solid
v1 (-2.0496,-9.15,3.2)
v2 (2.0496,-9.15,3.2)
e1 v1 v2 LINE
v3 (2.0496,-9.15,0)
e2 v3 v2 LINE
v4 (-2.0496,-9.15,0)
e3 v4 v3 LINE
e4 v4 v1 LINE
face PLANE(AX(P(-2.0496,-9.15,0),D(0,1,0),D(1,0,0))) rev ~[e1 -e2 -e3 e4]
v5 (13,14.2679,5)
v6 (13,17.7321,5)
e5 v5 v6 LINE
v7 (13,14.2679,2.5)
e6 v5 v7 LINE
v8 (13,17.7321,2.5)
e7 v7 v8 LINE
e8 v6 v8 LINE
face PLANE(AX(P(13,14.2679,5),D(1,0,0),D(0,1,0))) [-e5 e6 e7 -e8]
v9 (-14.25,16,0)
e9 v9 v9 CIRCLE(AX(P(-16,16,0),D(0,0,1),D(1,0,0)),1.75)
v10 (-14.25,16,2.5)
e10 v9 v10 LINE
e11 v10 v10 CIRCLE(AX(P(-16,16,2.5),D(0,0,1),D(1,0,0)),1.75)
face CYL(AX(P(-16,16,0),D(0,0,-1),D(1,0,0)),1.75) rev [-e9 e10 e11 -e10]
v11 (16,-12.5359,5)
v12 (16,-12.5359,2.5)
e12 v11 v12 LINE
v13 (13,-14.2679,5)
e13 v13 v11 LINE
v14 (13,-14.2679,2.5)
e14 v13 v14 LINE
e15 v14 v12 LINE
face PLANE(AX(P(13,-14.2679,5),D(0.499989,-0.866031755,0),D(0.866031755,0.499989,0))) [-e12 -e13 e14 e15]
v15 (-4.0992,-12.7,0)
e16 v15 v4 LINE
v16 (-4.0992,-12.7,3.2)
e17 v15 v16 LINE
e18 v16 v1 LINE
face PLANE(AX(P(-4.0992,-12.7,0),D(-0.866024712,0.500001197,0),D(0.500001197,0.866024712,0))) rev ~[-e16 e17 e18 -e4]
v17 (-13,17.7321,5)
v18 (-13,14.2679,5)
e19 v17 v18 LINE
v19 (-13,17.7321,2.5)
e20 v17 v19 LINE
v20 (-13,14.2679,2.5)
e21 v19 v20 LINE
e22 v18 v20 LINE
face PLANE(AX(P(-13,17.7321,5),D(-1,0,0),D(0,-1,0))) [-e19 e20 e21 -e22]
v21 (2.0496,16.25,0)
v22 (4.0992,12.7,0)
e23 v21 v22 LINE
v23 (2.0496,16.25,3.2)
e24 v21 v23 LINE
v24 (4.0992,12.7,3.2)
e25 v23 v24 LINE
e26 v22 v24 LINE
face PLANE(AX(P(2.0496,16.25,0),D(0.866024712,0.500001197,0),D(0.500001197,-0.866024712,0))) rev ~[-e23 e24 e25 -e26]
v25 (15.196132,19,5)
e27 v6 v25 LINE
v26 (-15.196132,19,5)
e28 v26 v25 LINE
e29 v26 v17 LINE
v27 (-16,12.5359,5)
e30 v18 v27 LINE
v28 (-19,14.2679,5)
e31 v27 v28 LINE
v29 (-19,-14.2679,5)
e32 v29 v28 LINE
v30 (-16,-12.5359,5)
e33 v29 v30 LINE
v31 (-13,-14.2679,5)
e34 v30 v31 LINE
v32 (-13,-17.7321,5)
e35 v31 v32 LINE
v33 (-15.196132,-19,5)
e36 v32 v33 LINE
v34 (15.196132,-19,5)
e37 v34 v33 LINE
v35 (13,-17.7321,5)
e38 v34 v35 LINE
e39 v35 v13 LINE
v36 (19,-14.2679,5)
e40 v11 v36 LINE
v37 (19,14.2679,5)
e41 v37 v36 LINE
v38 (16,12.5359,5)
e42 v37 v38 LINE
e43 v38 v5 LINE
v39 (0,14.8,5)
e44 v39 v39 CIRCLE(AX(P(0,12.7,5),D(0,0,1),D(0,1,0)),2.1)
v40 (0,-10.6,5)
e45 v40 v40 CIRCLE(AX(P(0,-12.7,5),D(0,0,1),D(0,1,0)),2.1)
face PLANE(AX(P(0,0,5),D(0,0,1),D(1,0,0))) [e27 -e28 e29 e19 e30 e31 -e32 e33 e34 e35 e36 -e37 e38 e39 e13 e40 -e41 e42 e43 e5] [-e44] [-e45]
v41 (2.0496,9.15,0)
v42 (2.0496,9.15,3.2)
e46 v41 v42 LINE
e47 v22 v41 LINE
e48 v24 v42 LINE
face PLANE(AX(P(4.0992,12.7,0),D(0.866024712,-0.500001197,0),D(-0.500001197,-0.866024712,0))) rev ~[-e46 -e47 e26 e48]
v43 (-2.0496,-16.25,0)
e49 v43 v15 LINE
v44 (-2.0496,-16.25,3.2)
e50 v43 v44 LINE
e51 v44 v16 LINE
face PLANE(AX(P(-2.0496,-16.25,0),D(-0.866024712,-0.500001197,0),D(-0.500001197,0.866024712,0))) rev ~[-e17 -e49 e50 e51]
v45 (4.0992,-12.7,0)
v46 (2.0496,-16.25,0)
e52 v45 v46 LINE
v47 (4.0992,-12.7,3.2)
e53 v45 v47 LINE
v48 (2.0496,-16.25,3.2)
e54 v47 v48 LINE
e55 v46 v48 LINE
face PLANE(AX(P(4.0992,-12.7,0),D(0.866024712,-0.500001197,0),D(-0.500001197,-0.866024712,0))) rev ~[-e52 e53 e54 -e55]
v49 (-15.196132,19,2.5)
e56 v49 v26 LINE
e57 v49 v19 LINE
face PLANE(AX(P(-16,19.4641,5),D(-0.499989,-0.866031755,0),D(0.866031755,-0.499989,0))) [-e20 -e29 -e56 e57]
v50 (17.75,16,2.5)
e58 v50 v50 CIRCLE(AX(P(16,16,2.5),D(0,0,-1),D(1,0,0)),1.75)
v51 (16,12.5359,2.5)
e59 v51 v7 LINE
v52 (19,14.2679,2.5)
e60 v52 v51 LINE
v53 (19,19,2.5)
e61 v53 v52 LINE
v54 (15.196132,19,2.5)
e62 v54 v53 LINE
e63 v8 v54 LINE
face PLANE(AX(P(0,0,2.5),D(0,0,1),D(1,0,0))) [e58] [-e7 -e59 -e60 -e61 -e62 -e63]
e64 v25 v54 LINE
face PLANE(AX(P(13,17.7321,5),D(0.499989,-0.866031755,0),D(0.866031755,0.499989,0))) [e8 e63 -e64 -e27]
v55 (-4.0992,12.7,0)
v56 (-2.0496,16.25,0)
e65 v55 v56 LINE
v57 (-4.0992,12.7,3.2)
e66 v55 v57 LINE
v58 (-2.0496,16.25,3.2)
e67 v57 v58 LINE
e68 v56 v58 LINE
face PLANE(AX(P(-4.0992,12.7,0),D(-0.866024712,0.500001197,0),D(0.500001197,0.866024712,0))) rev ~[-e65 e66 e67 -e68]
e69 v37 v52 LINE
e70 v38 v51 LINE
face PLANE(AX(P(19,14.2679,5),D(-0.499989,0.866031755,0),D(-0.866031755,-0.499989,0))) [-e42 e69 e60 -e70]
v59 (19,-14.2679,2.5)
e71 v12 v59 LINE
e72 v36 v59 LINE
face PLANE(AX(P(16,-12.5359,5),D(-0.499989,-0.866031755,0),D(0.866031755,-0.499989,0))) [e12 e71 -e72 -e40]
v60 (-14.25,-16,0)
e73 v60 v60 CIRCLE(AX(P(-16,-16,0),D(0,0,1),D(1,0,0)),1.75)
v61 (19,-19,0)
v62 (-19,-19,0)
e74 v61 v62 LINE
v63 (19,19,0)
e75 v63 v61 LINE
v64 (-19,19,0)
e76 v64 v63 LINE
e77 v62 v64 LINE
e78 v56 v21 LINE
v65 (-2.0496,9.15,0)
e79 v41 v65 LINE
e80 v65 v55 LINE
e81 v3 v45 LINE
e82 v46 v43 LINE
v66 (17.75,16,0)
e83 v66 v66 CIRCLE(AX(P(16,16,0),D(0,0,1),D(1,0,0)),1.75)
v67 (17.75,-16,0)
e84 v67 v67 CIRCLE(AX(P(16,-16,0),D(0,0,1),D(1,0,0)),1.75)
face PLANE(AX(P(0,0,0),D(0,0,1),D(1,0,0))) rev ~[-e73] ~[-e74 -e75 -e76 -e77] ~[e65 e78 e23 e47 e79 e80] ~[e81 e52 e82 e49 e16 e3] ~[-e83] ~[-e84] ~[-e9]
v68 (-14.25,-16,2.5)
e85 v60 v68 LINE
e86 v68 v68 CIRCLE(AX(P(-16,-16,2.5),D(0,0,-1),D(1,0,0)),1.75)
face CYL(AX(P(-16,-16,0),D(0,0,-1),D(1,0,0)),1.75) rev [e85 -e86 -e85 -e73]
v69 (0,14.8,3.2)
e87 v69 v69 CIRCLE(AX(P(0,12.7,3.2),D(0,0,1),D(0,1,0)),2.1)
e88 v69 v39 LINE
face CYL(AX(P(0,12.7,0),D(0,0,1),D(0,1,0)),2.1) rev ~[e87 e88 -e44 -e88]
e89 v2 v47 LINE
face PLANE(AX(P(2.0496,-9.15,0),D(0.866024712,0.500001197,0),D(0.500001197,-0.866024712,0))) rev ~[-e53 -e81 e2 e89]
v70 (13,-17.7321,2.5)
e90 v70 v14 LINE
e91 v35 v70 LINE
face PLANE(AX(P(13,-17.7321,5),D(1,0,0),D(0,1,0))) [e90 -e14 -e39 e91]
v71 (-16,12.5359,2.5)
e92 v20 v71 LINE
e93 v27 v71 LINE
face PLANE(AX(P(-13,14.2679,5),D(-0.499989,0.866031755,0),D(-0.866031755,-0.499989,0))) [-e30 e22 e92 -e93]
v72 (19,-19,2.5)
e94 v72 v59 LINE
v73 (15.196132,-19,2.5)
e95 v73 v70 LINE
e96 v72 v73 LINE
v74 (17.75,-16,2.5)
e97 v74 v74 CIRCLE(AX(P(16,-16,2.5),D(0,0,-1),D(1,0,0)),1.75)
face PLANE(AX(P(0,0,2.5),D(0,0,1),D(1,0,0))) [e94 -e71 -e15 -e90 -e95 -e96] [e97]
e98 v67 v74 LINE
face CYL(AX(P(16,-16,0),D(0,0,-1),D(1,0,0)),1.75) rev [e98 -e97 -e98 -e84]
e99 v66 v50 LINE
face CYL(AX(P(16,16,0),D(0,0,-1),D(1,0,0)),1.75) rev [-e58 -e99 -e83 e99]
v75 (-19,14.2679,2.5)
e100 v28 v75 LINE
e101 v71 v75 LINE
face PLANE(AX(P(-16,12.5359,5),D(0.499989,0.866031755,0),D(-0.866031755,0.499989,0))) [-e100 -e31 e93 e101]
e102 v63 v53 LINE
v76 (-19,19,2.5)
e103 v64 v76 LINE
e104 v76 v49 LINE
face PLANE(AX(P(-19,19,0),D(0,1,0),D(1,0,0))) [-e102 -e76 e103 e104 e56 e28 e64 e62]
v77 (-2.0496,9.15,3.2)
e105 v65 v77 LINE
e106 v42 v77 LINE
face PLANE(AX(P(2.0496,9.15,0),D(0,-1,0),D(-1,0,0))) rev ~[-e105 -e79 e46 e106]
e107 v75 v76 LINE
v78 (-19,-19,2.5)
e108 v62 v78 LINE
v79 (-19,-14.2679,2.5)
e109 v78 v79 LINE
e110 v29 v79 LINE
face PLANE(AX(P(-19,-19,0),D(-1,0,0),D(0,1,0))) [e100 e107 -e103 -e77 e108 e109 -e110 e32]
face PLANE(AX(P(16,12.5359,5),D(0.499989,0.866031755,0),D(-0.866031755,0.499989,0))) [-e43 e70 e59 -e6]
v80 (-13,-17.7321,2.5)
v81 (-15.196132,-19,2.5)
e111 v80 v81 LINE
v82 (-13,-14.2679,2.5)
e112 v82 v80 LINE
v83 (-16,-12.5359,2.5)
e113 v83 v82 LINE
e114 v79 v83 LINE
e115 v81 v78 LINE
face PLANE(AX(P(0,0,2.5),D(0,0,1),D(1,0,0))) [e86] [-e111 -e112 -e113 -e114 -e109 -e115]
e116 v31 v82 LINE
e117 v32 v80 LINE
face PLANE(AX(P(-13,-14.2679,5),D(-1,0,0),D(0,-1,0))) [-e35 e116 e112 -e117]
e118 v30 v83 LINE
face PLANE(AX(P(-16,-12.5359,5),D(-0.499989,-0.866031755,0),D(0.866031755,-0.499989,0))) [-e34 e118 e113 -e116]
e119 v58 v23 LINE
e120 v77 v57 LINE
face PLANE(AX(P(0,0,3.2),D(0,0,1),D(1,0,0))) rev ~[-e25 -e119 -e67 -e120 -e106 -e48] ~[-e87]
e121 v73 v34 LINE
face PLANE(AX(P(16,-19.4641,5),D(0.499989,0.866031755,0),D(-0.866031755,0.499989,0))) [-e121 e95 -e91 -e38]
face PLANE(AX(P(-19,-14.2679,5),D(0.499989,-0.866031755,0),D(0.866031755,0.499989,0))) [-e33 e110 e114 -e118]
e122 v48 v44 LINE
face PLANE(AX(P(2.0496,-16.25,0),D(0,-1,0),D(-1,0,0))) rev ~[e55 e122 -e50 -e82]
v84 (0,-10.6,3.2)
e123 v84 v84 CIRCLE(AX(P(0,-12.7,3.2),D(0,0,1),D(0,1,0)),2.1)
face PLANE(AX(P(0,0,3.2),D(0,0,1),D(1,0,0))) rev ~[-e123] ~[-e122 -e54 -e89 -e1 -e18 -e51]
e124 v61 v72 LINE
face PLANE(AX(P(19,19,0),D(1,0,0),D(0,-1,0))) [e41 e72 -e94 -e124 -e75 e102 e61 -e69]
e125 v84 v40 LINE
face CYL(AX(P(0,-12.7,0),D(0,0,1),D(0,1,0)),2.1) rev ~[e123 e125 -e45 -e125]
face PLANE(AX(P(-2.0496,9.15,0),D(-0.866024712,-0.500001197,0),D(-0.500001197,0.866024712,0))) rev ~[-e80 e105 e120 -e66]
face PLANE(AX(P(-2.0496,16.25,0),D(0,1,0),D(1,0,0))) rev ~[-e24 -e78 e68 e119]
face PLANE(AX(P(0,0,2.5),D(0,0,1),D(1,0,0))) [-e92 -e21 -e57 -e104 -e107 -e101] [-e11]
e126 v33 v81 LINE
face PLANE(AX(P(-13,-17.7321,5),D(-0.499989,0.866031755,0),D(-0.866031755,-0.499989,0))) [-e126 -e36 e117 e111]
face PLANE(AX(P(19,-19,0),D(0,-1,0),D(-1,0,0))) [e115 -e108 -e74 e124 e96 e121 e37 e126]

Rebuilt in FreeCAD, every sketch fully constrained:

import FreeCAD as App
import Part
import Sketcher
from FreeCAD import Vector
Q = App.Units.Quantity

doc = App.newDocument("Part")
body = doc.addObject("PartDesign::Body", "Body")

sketch1 = doc.addObject("Sketcher::SketchObject", "Sketch")
body.addObject(sketch1)
sketch1.AttachmentSupport = (doc.XY_Plane, [""])
sketch1.MapMode = "FlatFace"
sketch1.addGeometry([
    Part.LineSegment(Vector(-19, -19, 0), Vector(19, -19, 0)),
    Part.LineSegment(Vector(19, -19, 0), Vector(19, 19, 0)),
    Part.LineSegment(Vector(19, 19, 0), Vector(-19, 19, 0)),
    Part.LineSegment(Vector(-19, 19, 0), Vector(-19, -19, 0)),
    Part.Circle(Vector(-16, -16, 0), Vector(0, 0, 1), 1.8),
    Part.Circle(Vector(16, -16, 0), Vector(0, 0, 1), 1.8),
    Part.Circle(Vector(-16, 16, 0), Vector(0, 0, 1), 1.8),
    Part.Circle(Vector(16, 16, 0), Vector(0, 0, 1), 1.8),
], False)
sketch1.addConstraint([
    Sketcher.Constraint("Coincident", 0, 2, 1, 1),
    Sketcher.Constraint("Coincident", 1, 2, 2, 1),
    Sketcher.Constraint("Coincident", 2, 2, 3, 1),
    Sketcher.Constraint("Coincident", 3, 2, 0, 1),
    Sketcher.Constraint("Horizontal", 0),
    Sketcher.Constraint("Vertical", 1),
    Sketcher.Constraint("Horizontal", 2),
    Sketcher.Constraint("Vertical", 3),
    Sketcher.Constraint("Equal", 4, 5),
    Sketcher.Constraint("Equal", 5, 6),
    Sketcher.Constraint("Equal", 6, 7),
    Sketcher.Constraint("Symmetric", 5, 3, 6, 3, -1, 1),
    Sketcher.Constraint("Symmetric", 4, 3, 7, 3, -1, 1),
    Sketcher.Constraint("Symmetric", 0, 2, 2, 2, -1, 1),
    Sketcher.Constraint("Symmetric", 4, 3, 5, 3, -2),
    Sketcher.Constraint("Equal", 2, 1),
    Sketcher.Constraint("Diameter", 4, 3.5),
    Sketcher.Constraint("DistanceX", 0, 1, 0, 2, 38.0),
    Sketcher.Constraint("DistanceX", 4, 3, -1, 1, 16.0),
    Sketcher.Constraint("DistanceY", 4, 3, -1, 1, 16.0),
])
pad1 = doc.addObject("PartDesign::Pad", "Pad")
body.addObject(pad1)
pad1.Profile = sketch1
pad1.Length = 5

sketch2 = doc.addObject("Sketcher::SketchObject", "Sketch001")
body.addObject(sketch2)
sketch2.AttachmentSupport = (doc.XY_Plane, [""])
sketch2.MapMode = "FlatFace"
sketch2.AttachmentOffset = App.Placement(Vector(0, 0, 5), App.Rotation())
sketch2.addGeometry([
    Part.LineSegment(Vector(-13, 17.7, 0), Vector(-16, 19.5, 0)),
    Part.LineSegment(Vector(-16, 19.5, 0), Vector(-19, 17.7, 0)),
    Part.LineSegment(Vector(-19, 17.7, 0), Vector(-19, 14.3, 0)),
    Part.LineSegment(Vector(-19, 14.3, 0), Vector(-16, 12.5, 0)),
    Part.LineSegment(Vector(-16, 12.5, 0), Vector(-13, 14.3, 0)),
    Part.LineSegment(Vector(-13, 14.3, 0), Vector(-13, 17.7, 0)),
    Part.Circle(Vector(-16, 16, 0), Vector(0, 0, 1), 1.8),
    Part.LineSegment(Vector(19, 17.7, 0), Vector(16, 19.5, 0)),
    Part.LineSegment(Vector(16, 19.5, 0), Vector(13, 17.7, 0)),
    Part.LineSegment(Vector(13, 17.7, 0), Vector(13, 14.3, 0)),
    Part.LineSegment(Vector(13, 14.3, 0), Vector(16, 12.5, 0)),
    Part.LineSegment(Vector(16, 12.5, 0), Vector(19, 14.3, 0)),
    Part.LineSegment(Vector(19, 14.3, 0), Vector(19, 17.7, 0)),
    Part.LineSegment(Vector(-13, -14.3, 0), Vector(-16, -12.5, 0)),
    Part.LineSegment(Vector(-16, -12.5, 0), Vector(-19, -14.3, 0)),
    Part.LineSegment(Vector(-19, -14.3, 0), Vector(-19, -17.7, 0)),
    Part.LineSegment(Vector(-19, -17.7, 0), Vector(-16, -19.5, 0)),
    Part.LineSegment(Vector(-16, -19.5, 0), Vector(-13, -17.7, 0)),
    Part.LineSegment(Vector(-13, -17.7, 0), Vector(-13, -14.3, 0)),
    Part.LineSegment(Vector(19, -14.3, 0), Vector(16, -12.5, 0)),
    Part.LineSegment(Vector(16, -12.5, 0), Vector(13, -14.3, 0)),
    Part.LineSegment(Vector(13, -14.3, 0), Vector(13, -17.7, 0)),
    Part.LineSegment(Vector(13, -17.7, 0), Vector(16, -19.5, 0)),
    Part.LineSegment(Vector(16, -19.5, 0), Vector(19, -17.7, 0)),
    Part.LineSegment(Vector(19, -17.7, 0), Vector(19, -14.3, 0)),
], False)
sketch2.addConstraint([
    Sketcher.Constraint("Coincident", 0, 2, 1, 1),
    Sketcher.Constraint("Coincident", 1, 2, 2, 1),
    Sketcher.Constraint("Coincident", 2, 2, 3, 1),
    Sketcher.Constraint("Coincident", 3, 2, 4, 1),
    Sketcher.Constraint("Coincident", 4, 2, 5, 1),
    Sketcher.Constraint("Coincident", 5, 2, 0, 1),
    Sketcher.Constraint("Coincident", 7, 2, 8, 1),
    Sketcher.Constraint("Coincident", 8, 2, 9, 1),
    Sketcher.Constraint("Coincident", 9, 2, 10, 1),
    Sketcher.Constraint("Coincident", 10, 2, 11, 1),
    Sketcher.Constraint("Coincident", 11, 2, 12, 1),
    Sketcher.Constraint("Coincident", 12, 2, 7, 1),
    Sketcher.Constraint("Coincident", 13, 2, 14, 1),
    Sketcher.Constraint("Coincident", 14, 2, 15, 1),
    Sketcher.Constraint("Coincident", 15, 2, 16, 1),
    Sketcher.Constraint("Coincident", 16, 2, 17, 1),
    Sketcher.Constraint("Coincident", 17, 2, 18, 1),
    Sketcher.Constraint("Coincident", 18, 2, 13, 1),
    Sketcher.Constraint("Coincident", 19, 2, 20, 1),
    Sketcher.Constraint("Coincident", 20, 2, 21, 1),
    Sketcher.Constraint("Coincident", 21, 2, 22, 1),
    Sketcher.Constraint("Coincident", 22, 2, 23, 1),
    Sketcher.Constraint("Coincident", 23, 2, 24, 1),
    Sketcher.Constraint("Coincident", 24, 2, 19, 1),
    Sketcher.Constraint("Vertical", 2),
    Sketcher.Constraint("Vertical", 5),
    Sketcher.Constraint("Vertical", 9),
    Sketcher.Constraint("Vertical", 12),
    Sketcher.Constraint("Vertical", 15),
    Sketcher.Constraint("Vertical", 18),
    Sketcher.Constraint("Vertical", 21),
    Sketcher.Constraint("Vertical", 24),
    Sketcher.Constraint("Symmetric", 10, 2, 13, 2, -1, 1),
    Sketcher.Constraint("Symmetric", 11, 2, 14, 2, -1, 1),
    Sketcher.Constraint("Symmetric", 7, 2, 16, 2, -1, 1),
    Sketcher.Constraint("Symmetric", 8, 2, 17, 2, -1, 1),
    Sketcher.Constraint("Symmetric", 3, 2, 19, 2, -1, 1),
    Sketcher.Constraint("Symmetric", 4, 2, 20, 2, -1, 1),
    Sketcher.Constraint("Symmetric", 0, 2, 22, 2, -1, 1),
    Sketcher.Constraint("Symmetric", 1, 2, 23, 2, -1, 1),
    Sketcher.Constraint("Symmetric", 0, 2, 7, 2, -2),
    Sketcher.Constraint("Symmetric", 5, 2, 8, 2, -2),
    Sketcher.Constraint("Symmetric", 3, 2, 10, 2, -2),
    Sketcher.Constraint("Symmetric", 2, 2, 11, 2, -2),
    Sketcher.Constraint("Parallel", 0, 3),
    Sketcher.Constraint("Parallel", 1, 4),
    Sketcher.Constraint("Parallel", 3, 7),
    Sketcher.Constraint("Parallel", 4, 8),
    Sketcher.Constraint("Parallel", 7, 10),
    Sketcher.Constraint("Parallel", 10, 13),
    Sketcher.Constraint("Parallel", 13, 16),
    Sketcher.Constraint("Parallel", 16, 19),
    Sketcher.Constraint("Parallel", 19, 22),
    Sketcher.Constraint("Horizontal", 2, 2, 4, 2),
    Sketcher.Constraint("Horizontal", 1, 2, 5, 2),
    Sketcher.Constraint("Vertical", 6, 3, 0, 2),
    Sketcher.Constraint("DistanceX", 2, 2, 4, 2, 6.0),
    Sketcher.Constraint("DistanceX", 0, 2, 7, 2, 32.0),
    Sketcher.Constraint("DistanceY", 15, 2, 2, 2, 32.0),
    Sketcher.Constraint("Diameter", 6, 3.5),
    Sketcher.Constraint("Angle", 0, Q("150.0007 deg")),
    Sketcher.Constraint("DistanceY", -1, 1, 6, 3, 16.0),
    Sketcher.Constraint("DistanceY", 2, 2, 2, 1, 3.4642),
])
pocket1 = doc.addObject("PartDesign::Pocket", "Pocket")
body.addObject(pocket1)
pocket1.Profile = sketch2
pocket1.Length = 2.5

sketch3 = doc.addObject("Sketcher::SketchObject", "Sketch002")
body.addObject(sketch3)
sketch3.AttachmentSupport = (doc.XY_Plane, [""])
sketch3.MapMode = "FlatFace"
sketch3.addGeometry([
    Part.LineSegment(Vector(2, -16.2, 0), Vector(4.1, -12.7, 0)),
    Part.LineSegment(Vector(4.1, -12.7, 0), Vector(2, -9.2, 0)),
    Part.LineSegment(Vector(2, -9.2, 0), Vector(-2, -9.2, 0)),
    Part.LineSegment(Vector(-2, -9.2, 0), Vector(-4.1, -12.7, 0)),
    Part.LineSegment(Vector(-4.1, -12.7, 0), Vector(-2, -16.2, 0)),
    Part.LineSegment(Vector(-2, -16.2, 0), Vector(2, -16.2, 0)),
    Part.LineSegment(Vector(2, 9.2, 0), Vector(4.1, 12.7, 0)),
    Part.LineSegment(Vector(4.1, 12.7, 0), Vector(2, 16.2, 0)),
    Part.LineSegment(Vector(2, 16.2, 0), Vector(-2, 16.2, 0)),
    Part.LineSegment(Vector(-2, 16.2, 0), Vector(-4.1, 12.7, 0)),
    Part.LineSegment(Vector(-4.1, 12.7, 0), Vector(-2, 9.2, 0)),
    Part.LineSegment(Vector(-2, 9.2, 0), Vector(2, 9.2, 0)),
], False)
sketch3.addConstraint([
    Sketcher.Constraint("Coincident", 0, 2, 1, 1),
    Sketcher.Constraint("Coincident", 1, 2, 2, 1),
    Sketcher.Constraint("Coincident", 2, 2, 3, 1),
    Sketcher.Constraint("Coincident", 3, 2, 4, 1),
    Sketcher.Constraint("Coincident", 4, 2, 5, 1),
    Sketcher.Constraint("Coincident", 5, 2, 0, 1),
    Sketcher.Constraint("Coincident", 6, 2, 7, 1),
    Sketcher.Constraint("Coincident", 7, 2, 8, 1),
    Sketcher.Constraint("Coincident", 8, 2, 9, 1),
    Sketcher.Constraint("Coincident", 9, 2, 10, 1),
    Sketcher.Constraint("Coincident", 10, 2, 11, 1),
    Sketcher.Constraint("Coincident", 11, 2, 6, 1),
    Sketcher.Constraint("Horizontal", 2),
    Sketcher.Constraint("Horizontal", 5),
    Sketcher.Constraint("Horizontal", 8),
    Sketcher.Constraint("Horizontal", 11),
    Sketcher.Constraint("Symmetric", 3, 2, 6, 2, -1, 1),
    Sketcher.Constraint("Symmetric", 4, 2, 7, 2, -1, 1),
    Sketcher.Constraint("Symmetric", 0, 2, 9, 2, -1, 1),
    Sketcher.Constraint("Symmetric", 1, 2, 10, 2, -1, 1),
    Sketcher.Constraint("Symmetric", 0, 2, 3, 2, -2),
    Sketcher.Constraint("Parallel", 0, 3),
    Sketcher.Constraint("Parallel", 1, 4),
    Sketcher.Constraint("Parallel", 3, 6),
    Sketcher.Constraint("Parallel", 6, 9),
    Sketcher.Constraint("Vertical", 2, 2, 4, 2),
    Sketcher.Constraint("Vertical", 1, 2, 5, 2),
    Sketcher.Constraint("DistanceY", 4, 2, 2, 2, 7.1),
    Sketcher.Constraint("Angle", 0, Q("60 deg")),
    Sketcher.Constraint("DistanceY", 0, 2, -1, 1, 12.7),
    Sketcher.Constraint("DistanceX", 2, 2, 2, 1, 4.0992),
])
pocket2 = doc.addObject("PartDesign::Pocket", "Pocket001")
body.addObject(pocket2)
pocket2.Profile = sketch3
pocket2.Length = 3.2
pocket2.Reversed = True

sketch4 = doc.addObject("Sketcher::SketchObject", "Sketch003")
body.addObject(sketch4)
sketch4.AttachmentSupport = (doc.XY_Plane, [""])
sketch4.MapMode = "FlatFace"
sketch4.addGeometry([
    Part.Circle(Vector(0, 12.7, 0), Vector(0, 0, 1), 2.1),
    Part.Circle(Vector(0, -12.7, 0), Vector(0, 0, 1), 2.1),
], False)
sketch4.addConstraint([
    Sketcher.Constraint("Equal", 0, 1),
    Sketcher.Constraint("Symmetric", 0, 3, 1, 3, -1, 1),
    Sketcher.Constraint("PointOnObject", 0, 3, -2),
    Sketcher.Constraint("Diameter", 0, 4.2),
    Sketcher.Constraint("DistanceY", -1, 1, 0, 3, 12.7),
])
doc.recompute()
hole = doc.addObject("PartDesign::Hole", "Hole")
body.addObject(hole)
hole.Profile = sketch4
hole.ThreadType = "None"
hole.Diameter = 4.2
hole.DepthType = "ThroughAll"
hole.Reversed = True

sketch5 = doc.addObject("Sketcher::SketchObject", "Sketch004")
body.addObject(sketch5)
sketch5.AttachmentSupport = (doc.XY_Plane, [""])
sketch5.MapMode = "FlatFace"
sketch5.AttachmentOffset = App.Placement(Vector(0, 0, 5), App.Rotation())
sketch5.addGeometry([
    Part.LineSegment(Vector(-19, -19, 0), Vector(-16.8, -19, 0)),
    Part.LineSegment(Vector(-16.8, -19, 0), Vector(-19, -17.7, 0)),
    Part.LineSegment(Vector(-19, -17.7, 0), Vector(-19, -19, 0)),
    Part.LineSegment(Vector(19, -17.7, 0), Vector(16.8, -19, 0)),
    Part.LineSegment(Vector(16.8, -19, 0), Vector(19, -19, 0)),
    Part.LineSegment(Vector(19, -19, 0), Vector(19, -17.7, 0)),
    Part.LineSegment(Vector(-19, 19, 0), Vector(-19, 17.7, 0)),
    Part.LineSegment(Vector(-19, 17.7, 0), Vector(-16.8, 19, 0)),
    Part.LineSegment(Vector(-16.8, 19, 0), Vector(-19, 19, 0)),
    Part.LineSegment(Vector(16.8, 19, 0), Vector(19, 17.7, 0)),
    Part.LineSegment(Vector(19, 17.7, 0), Vector(19, 19, 0)),
    Part.LineSegment(Vector(19, 19, 0), Vector(16.8, 19, 0)),
], False)
sketch5.addConstraint([
    Sketcher.Constraint("Coincident", 0, 2, 1, 1),
    Sketcher.Constraint("Coincident", 1, 2, 2, 1),
    Sketcher.Constraint("Coincident", 2, 2, 0, 1),
    Sketcher.Constraint("Coincident", 3, 2, 4, 1),
    Sketcher.Constraint("Coincident", 4, 2, 5, 1),
    Sketcher.Constraint("Coincident", 5, 2, 3, 1),
    Sketcher.Constraint("Coincident", 6, 2, 7, 1),
    Sketcher.Constraint("Coincident", 7, 2, 8, 1),
    Sketcher.Constraint("Coincident", 8, 2, 6, 1),
    Sketcher.Constraint("Coincident", 9, 2, 10, 1),
    Sketcher.Constraint("Coincident", 10, 2, 11, 1),
    Sketcher.Constraint("Coincident", 11, 2, 9, 1),
    Sketcher.Constraint("Horizontal", 0),
    Sketcher.Constraint("Vertical", 2),
    Sketcher.Constraint("Horizontal", 4),
    Sketcher.Constraint("Vertical", 5),
    Sketcher.Constraint("Vertical", 6),
    Sketcher.Constraint("Horizontal", 8),
    Sketcher.Constraint("Vertical", 10),
    Sketcher.Constraint("Horizontal", 11),
    Sketcher.Constraint("Symmetric", 5, 2, 6, 2, -1, 1),
    Sketcher.Constraint("Symmetric", 3, 2, 7, 2, -1, 1),
    Sketcher.Constraint("Symmetric", 1, 2, 9, 2, -1, 1),
    Sketcher.Constraint("Symmetric", 0, 2, 11, 2, -1, 1),
    Sketcher.Constraint("Symmetric", 0, 2, 3, 2, -2),
    Sketcher.Constraint("Symmetric", 1, 2, 5, 2, -2),
    Sketcher.Constraint("DistanceY", 0, 2, -1, 1, 19.0),
    Sketcher.Constraint("DistanceX", 1, 2, -1, 1, 19.0),
    Sketcher.Constraint("DistanceY", 2, 2, 2, 1, 1.268),
    Sketcher.Constraint("Distance", 1, 2.536),
])
pocket3 = doc.addObject("PartDesign::Pocket", "Pocket002")
body.addObject(pocket3)
pocket3.Profile = sketch5
pocket3.Length = 2.5

doc.recompute()
